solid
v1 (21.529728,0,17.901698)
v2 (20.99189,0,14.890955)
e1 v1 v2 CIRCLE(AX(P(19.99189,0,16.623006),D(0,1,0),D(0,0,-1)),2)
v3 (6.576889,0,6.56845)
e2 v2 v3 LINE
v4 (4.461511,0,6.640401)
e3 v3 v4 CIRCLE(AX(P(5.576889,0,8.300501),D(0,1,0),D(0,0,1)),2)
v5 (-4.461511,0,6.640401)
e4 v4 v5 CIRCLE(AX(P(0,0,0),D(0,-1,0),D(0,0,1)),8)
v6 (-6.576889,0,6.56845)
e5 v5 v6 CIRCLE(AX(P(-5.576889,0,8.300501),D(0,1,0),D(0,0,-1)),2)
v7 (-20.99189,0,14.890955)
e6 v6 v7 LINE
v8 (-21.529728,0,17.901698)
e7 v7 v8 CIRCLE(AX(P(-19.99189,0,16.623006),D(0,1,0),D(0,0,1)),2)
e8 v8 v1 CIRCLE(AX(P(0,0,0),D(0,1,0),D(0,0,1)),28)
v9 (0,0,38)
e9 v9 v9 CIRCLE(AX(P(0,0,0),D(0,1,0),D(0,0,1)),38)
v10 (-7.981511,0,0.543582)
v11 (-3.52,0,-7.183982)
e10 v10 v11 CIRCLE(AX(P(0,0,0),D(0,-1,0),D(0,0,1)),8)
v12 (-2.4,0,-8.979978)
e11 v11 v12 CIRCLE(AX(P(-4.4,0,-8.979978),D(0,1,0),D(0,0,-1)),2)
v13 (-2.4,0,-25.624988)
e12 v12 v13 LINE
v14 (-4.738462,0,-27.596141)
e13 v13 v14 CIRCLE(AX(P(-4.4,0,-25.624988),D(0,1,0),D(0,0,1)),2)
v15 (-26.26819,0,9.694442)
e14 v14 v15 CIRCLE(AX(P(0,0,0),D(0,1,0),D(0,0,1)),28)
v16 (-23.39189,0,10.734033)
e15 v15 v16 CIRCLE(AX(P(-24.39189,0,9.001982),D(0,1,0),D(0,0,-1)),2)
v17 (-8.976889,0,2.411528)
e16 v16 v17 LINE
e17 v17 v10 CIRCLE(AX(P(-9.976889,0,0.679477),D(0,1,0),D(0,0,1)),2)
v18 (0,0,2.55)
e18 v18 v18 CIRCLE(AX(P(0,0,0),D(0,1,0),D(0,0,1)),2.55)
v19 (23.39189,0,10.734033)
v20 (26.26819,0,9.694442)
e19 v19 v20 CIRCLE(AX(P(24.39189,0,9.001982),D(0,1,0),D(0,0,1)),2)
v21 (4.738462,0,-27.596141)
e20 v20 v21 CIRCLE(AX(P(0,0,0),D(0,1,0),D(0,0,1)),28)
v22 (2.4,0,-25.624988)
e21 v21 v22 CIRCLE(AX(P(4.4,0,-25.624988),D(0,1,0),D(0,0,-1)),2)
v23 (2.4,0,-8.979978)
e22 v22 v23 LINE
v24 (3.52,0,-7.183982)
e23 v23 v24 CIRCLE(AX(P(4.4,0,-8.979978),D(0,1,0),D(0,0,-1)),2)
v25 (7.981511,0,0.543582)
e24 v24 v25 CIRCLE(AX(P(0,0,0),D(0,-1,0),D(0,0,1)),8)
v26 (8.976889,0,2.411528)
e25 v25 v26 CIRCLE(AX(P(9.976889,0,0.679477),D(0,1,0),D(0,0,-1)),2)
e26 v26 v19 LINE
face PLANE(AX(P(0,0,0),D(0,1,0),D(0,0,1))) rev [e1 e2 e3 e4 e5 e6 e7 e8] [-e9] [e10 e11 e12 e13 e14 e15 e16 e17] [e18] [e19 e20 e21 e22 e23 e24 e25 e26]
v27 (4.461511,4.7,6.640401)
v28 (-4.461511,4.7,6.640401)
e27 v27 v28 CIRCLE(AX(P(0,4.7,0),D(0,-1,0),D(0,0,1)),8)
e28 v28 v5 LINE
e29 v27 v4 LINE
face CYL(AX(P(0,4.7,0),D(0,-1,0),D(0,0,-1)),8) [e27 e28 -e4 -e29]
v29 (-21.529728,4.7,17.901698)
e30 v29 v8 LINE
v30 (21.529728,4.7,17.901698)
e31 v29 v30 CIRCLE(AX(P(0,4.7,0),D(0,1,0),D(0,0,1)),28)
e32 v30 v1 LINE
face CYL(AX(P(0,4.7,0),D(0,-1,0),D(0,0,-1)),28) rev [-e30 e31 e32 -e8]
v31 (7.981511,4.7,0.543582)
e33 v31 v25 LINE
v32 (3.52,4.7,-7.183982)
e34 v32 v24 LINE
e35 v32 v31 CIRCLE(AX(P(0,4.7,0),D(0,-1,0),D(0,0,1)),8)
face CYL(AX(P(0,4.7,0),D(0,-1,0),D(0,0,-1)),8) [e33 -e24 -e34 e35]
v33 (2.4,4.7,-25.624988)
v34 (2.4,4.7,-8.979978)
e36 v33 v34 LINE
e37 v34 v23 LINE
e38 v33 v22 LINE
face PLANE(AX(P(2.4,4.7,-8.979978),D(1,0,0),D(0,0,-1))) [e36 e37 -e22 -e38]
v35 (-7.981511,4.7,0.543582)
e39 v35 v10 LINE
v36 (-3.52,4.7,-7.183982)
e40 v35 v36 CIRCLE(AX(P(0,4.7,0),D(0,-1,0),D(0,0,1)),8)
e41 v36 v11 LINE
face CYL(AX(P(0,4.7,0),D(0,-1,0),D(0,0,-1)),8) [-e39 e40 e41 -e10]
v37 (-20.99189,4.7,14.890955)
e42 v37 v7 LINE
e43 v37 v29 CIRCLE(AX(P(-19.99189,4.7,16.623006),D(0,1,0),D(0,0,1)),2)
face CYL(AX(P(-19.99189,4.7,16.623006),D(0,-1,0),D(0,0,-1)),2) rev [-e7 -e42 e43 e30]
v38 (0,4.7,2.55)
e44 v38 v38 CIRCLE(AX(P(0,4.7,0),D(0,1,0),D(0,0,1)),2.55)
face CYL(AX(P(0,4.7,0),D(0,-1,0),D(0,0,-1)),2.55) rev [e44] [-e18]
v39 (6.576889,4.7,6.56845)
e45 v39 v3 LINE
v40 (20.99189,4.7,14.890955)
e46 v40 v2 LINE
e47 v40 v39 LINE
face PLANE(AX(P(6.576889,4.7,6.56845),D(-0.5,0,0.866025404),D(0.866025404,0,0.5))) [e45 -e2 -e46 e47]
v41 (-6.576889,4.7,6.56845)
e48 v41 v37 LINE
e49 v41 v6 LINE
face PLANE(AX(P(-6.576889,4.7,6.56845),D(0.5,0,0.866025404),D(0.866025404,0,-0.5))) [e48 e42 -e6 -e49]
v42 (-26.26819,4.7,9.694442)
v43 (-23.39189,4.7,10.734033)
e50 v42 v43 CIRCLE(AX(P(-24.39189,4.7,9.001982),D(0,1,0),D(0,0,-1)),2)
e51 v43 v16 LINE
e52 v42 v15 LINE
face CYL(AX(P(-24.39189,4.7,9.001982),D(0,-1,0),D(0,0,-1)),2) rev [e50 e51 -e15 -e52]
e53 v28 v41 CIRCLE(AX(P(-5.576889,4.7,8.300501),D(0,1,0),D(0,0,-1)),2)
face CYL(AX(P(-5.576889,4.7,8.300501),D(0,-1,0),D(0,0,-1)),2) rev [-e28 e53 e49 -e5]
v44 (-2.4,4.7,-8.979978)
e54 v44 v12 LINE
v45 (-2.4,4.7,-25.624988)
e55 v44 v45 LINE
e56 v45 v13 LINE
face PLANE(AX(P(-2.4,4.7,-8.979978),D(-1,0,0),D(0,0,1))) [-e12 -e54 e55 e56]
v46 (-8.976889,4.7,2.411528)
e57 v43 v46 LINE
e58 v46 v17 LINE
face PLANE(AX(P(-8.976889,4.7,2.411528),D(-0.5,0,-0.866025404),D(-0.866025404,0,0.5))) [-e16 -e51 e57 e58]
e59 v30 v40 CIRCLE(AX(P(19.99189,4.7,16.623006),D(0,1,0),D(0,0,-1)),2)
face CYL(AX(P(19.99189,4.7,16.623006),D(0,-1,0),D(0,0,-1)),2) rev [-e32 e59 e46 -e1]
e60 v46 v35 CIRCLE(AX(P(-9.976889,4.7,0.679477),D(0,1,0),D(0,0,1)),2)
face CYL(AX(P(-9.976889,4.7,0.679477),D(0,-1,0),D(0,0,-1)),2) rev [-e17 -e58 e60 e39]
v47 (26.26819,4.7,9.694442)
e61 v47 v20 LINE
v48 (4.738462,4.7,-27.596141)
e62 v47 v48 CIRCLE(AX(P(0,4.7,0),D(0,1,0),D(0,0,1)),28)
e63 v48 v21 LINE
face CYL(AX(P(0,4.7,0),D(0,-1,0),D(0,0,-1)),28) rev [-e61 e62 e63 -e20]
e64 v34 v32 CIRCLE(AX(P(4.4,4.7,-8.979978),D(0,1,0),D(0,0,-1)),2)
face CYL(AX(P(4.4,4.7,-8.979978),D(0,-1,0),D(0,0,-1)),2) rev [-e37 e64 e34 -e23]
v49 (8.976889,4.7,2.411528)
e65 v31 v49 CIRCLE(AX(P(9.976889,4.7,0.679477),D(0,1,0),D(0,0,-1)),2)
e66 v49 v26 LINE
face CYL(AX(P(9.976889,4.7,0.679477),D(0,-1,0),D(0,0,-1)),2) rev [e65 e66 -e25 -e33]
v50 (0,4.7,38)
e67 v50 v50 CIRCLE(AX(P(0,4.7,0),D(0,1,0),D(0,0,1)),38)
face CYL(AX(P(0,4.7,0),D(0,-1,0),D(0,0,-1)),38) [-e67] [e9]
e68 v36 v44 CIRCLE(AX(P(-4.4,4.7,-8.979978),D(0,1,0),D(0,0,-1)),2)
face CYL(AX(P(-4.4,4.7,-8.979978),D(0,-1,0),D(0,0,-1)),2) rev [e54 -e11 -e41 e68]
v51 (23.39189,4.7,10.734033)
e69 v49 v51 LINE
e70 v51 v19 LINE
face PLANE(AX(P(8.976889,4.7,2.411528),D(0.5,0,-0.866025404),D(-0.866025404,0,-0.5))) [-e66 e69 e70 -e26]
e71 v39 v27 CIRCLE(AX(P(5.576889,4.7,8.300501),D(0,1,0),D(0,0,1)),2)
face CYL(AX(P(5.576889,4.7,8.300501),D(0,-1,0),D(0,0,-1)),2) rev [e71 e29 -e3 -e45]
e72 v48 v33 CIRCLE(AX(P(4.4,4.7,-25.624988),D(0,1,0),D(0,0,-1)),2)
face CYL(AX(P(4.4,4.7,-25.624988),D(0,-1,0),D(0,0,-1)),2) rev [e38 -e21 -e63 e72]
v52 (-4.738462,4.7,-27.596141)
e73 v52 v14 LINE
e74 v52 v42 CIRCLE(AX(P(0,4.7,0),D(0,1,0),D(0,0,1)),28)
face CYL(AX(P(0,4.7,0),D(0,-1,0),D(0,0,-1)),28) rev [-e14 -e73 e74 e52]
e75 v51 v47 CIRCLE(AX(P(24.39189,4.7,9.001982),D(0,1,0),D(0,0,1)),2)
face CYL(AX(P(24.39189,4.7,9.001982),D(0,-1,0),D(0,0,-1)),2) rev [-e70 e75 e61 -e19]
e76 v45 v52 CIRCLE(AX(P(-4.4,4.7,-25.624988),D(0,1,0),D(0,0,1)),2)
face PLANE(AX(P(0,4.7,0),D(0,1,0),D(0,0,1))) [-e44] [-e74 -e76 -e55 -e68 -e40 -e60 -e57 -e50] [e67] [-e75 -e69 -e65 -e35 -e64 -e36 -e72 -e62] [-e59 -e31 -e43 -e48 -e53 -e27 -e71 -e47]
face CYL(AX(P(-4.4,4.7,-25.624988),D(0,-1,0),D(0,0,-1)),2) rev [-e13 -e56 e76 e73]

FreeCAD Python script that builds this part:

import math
import FreeCAD as App
import Part
import Sketcher
from FreeCAD import Vector
Q = App.Units.Quantity

doc = App.newDocument("Part")
body = doc.addObject("PartDesign::Body", "Body")

# Sketch on XZ plane
sketch1 = body.newObject("Sketcher::SketchObject", "Sketch")
sketch1.AttachmentSupport = (doc.getObject("XZ_Plane"), [""])
sketch1.MapMode = "FlatFace"
sketch1.addGeometry(Part.Circle(Vector(0, 0, 0), Vector(0, 0, 1), 38), False)
sketch1.addGeometry(Part.LineSegment(Vector(-2.4, -25.6, 0), Vector(-2.4, -9, 0)), False)
sketch1.addGeometry(Part.ArcOfCircle(Part.Circle(Vector(-4.4, -9, 0), Vector(0, 0, 1), 2), math.radians(0), math.radians(64)), False)
sketch1.addGeometry(Part.ArcOfCircle(Part.Circle(Vector(0, 0, 0), Vector(0, 0, 1), 8), math.radians(176), math.radians(244)), False)
sketch1.addGeometry(Part.ArcOfCircle(Part.Circle(Vector(-10, 0.7, 0), Vector(0, 0, 1), 2), math.radians(-4), math.radians(60)), False)
sketch1.addGeometry(Part.LineSegment(Vector(-9, 2.4, 0), Vector(-23.4, 10.7, 0)), False)
sketch1.addGeometry(Part.ArcOfCircle(Part.Circle(Vector(-24.4, 9, 0), Vector(0, 0, 1), 2), math.radians(60), math.radians(160)), False)
sketch1.addGeometry(Part.ArcOfCircle(Part.Circle(Vector(0, 0, 0), Vector(0, 0, 1), 28), math.radians(160), math.radians(260)), False)
sketch1.addGeometry(Part.ArcOfCircle(Part.Circle(Vector(-4.4, -25.6, 0), Vector(0, 0, 1), 2), math.radians(-100), math.radians(0)), False)
sketch1.addGeometry(Part.Circle(Vector(0, 0, 0), Vector(0, 0, 1), 2.5), False)
sketch1.addGeometry(Part.ArcOfCircle(Part.Circle(Vector(4.4, -9, 0), Vector(0, 0, 1), 2), math.radians(116), math.radians(180)), False)
sketch1.addGeometry(Part.LineSegment(Vector(2.4, -9, 0), Vector(2.4, -25.6, 0)), False)
sketch1.addGeometry(Part.ArcOfCircle(Part.Circle(Vector(4.4, -25.6, 0), Vector(0, 0, 1), 2), math.radians(-180), math.radians(-80)), False)
sketch1.addGeometry(Part.ArcOfCircle(Part.Circle(Vector(0, 0, 0), Vector(0, 0, 1), 28), math.radians(-80), math.radians(20)), False)
sketch1.addGeometry(Part.ArcOfCircle(Part.Circle(Vector(24.4, 9, 0), Vector(0, 0, 1), 2), math.radians(20), math.radians(120)), False)
sketch1.addGeometry(Part.LineSegment(Vector(23.4, 10.7, 0), Vector(9, 2.4, 0)), False)
sketch1.addGeometry(Part.ArcOfCircle(Part.Circle(Vector(10, 0.7, 0), Vector(0, 0, 1), 2), math.radians(120), math.radians(184)), False)
sketch1.addGeometry(Part.ArcOfCircle(Part.Circle(Vector(0, 0, 0), Vector(0, 0, 1), 8), math.radians(-64), math.radians(4)), False)
sketch1.addGeometry(Part.ArcOfCircle(Part.Circle(Vector(5.6, 8.3, 0), Vector(0, 0, 1), 2), math.radians(-124), math.radians(-60)), False)
sketch1.addGeometry(Part.LineSegment(Vector(6.6, 6.6, 0), Vector(21, 14.9, 0)), False)
sketch1.addGeometry(Part.ArcOfCircle(Part.Circle(Vector(20, 16.6, 0), Vector(0, 0, 1), 2), math.radians(-60), math.radians(40)), False)
sketch1.addGeometry(Part.ArcOfCircle(Part.Circle(Vector(0, 0, 0), Vector(0, 0, 1), 28), math.radians(40), math.radians(140)), False)
sketch1.addGeometry(Part.ArcOfCircle(Part.Circle(Vector(-20, 16.6, 0), Vector(0, 0, 1), 2), math.radians(140), math.radians(240)), False)
sketch1.addGeometry(Part.LineSegment(Vector(-21, 14.9, 0), Vector(-6.6, 6.6, 0)), False)
sketch1.addGeometry(Part.ArcOfCircle(Part.Circle(Vector(-5.6, 8.3, 0), Vector(0, 0, 1), 2), math.radians(-120), math.radians(-56)), False)
sketch1.addGeometry(Part.ArcOfCircle(Part.Circle(Vector(0, 0, 0), Vector(0, 0, 1), 8), math.radians(56), math.radians(124)), False)
sketch1.addConstraint(Sketcher.Constraint("Tangent", 1, 2, 2, 1))
sketch1.addConstraint(Sketcher.Constraint("Tangent", 2, 2, 3, 2))
sketch1.addConstraint(Sketcher.Constraint("Tangent", 3, 1, 4, 1))
sketch1.addConstraint(Sketcher.Constraint("Tangent", 4, 2, 5, 1))
sketch1.addConstraint(Sketcher.Constraint("Tangent", 5, 2, 6, 1))
sketch1.addConstraint(Sketcher.Constraint("Tangent", 6, 2, 7, 1))
sketch1.addConstraint(Sketcher.Constraint("Tangent", 7, 2, 8, 1))
sketch1.addConstraint(Sketcher.Constraint("Tangent", 8, 2, 1, 1))
sketch1.addConstraint(Sketcher.Constraint("Tangent", 10, 2, 11, 1))
sketch1.addConstraint(Sketcher.Constraint("Tangent", 11, 2, 12, 1))
sketch1.addConstraint(Sketcher.Constraint("Tangent", 12, 2, 13, 1))
sketch1.addConstraint(Sketcher.Constraint("Tangent", 13, 2, 14, 1))
sketch1.addConstraint(Sketcher.Constraint("Tangent", 14, 2, 15, 1))
sketch1.addConstraint(Sketcher.Constraint("Tangent", 15, 2, 16, 1))
sketch1.addConstraint(Sketcher.Constraint("Tangent", 16, 2, 17, 2))
sketch1.addConstraint(Sketcher.Constraint("Tangent", 17, 1, 10, 1))
sketch1.addConstraint(Sketcher.Constraint("Tangent", 18, 2, 19, 1))
sketch1.addConstraint(Sketcher.Constraint("Tangent", 19, 2, 20, 1))
sketch1.addConstraint(Sketcher.Constraint("Tangent", 20, 2, 21, 1))
sketch1.addConstraint(Sketcher.Constraint("Tangent", 21, 2, 22, 1))
sketch1.addConstraint(Sketcher.Constraint("Tangent", 22, 2, 23, 1))
sketch1.addConstraint(Sketcher.Constraint("Tangent", 23, 2, 24, 1))
sketch1.addConstraint(Sketcher.Constraint("Tangent", 24, 2, 25, 2))
sketch1.addConstraint(Sketcher.Constraint("Tangent", 25, 1, 18, 1))
sketch1.addConstraint(Sketcher.Constraint("Vertical", 1))
sketch1.addConstraint(Sketcher.Constraint("Vertical", 11))
sketch1.addConstraint(Sketcher.Constraint("Coincident", 0, 3, -1, 1))
sketch1.addConstraint(Sketcher.Constraint("Coincident", 3, 3, -1, 1))
sketch1.addConstraint(Sketcher.Constraint("Coincident", 7, 3, -1, 1))
sketch1.addConstraint(Sketcher.Constraint("Coincident", 9, 3, -1, 1))
sketch1.addConstraint(Sketcher.Constraint("Coincident", 13, 3, -1, 1))
sketch1.addConstraint(Sketcher.Constraint("Coincident", 17, 3, -1, 1))
sketch1.addConstraint(Sketcher.Constraint("Coincident", 21, 3, -1, 1))
sketch1.addConstraint(Sketcher.Constraint("Coincident", 25, 3, -1, 1))
sketch1.addConstraint(Sketcher.Constraint("Equal", 2, 4))
sketch1.addConstraint(Sketcher.Constraint("Equal", 4, 6))
sketch1.addConstraint(Sketcher.Constraint("Equal", 6, 8))
sketch1.addConstraint(Sketcher.Constraint("Equal", 8, 10))
sketch1.addConstraint(Sketcher.Constraint("Equal", 10, 12))
sketch1.addConstraint(Sketcher.Constraint("Equal", 7, 13))
sketch1.addConstraint(Sketcher.Constraint("Equal", 12, 14))
sketch1.addConstraint(Sketcher.Constraint("Equal", 14, 16))
sketch1.addConstraint(Sketcher.Constraint("Equal", 3, 17))
sketch1.addConstraint(Sketcher.Constraint("Equal", 16, 18))
sketch1.addConstraint(Sketcher.Constraint("Equal", 18, 20))
sketch1.addConstraint(Sketcher.Constraint("Equal", 13, 21))
sketch1.addConstraint(Sketcher.Constraint("Equal", 20, 22))
sketch1.addConstraint(Sketcher.Constraint("Equal", 22, 24))
sketch1.addConstraint(Sketcher.Constraint("Equal", 17, 25))
sketch1.addConstraint(Sketcher.Constraint("Symmetric", 5, 2, 14, 2, -2))
sketch1.addConstraint(Sketcher.Constraint("Symmetric", 19, 2, 22, 2, -2))
sketch1.addConstraint(Sketcher.Constraint("Parallel", 15, 19))
sketch1.addConstraint(Sketcher.Constraint("Horizontal", 2, 3, 10, 3))
sketch1.addConstraint(Sketcher.Constraint("Equal", 15, 19))
sketch1.addConstraint(Sketcher.Constraint("Diameter", 0, 76.0))
sketch1.addConstraint(Sketcher.Constraint("Radius", 2, 2.0))
sketch1.addConstraint(Sketcher.Constraint("Radius", 3, 8.0))
sketch1.addConstraint(Sketcher.Constraint("Radius", 7, 28.0))
sketch1.addConstraint(Sketcher.Constraint("Diameter", 9, 5.1))
sketch1.addConstraint(Sketcher.Constraint("Angle", 5, Q("150 deg")))
sketch1.addConstraint(Sketcher.Constraint("DistanceX", 2, 3, -1, 1, 4.4))
sketch1.addConstraint(Sketcher.Constraint("DistanceX", 18, 3, 16, 3, 4.4))
pad1 = body.newObject("PartDesign::Pad", "Pad")
pad1.Profile = sketch1
pad1.Length = 4.7
pad1.Reversed = True

doc.recompute()
